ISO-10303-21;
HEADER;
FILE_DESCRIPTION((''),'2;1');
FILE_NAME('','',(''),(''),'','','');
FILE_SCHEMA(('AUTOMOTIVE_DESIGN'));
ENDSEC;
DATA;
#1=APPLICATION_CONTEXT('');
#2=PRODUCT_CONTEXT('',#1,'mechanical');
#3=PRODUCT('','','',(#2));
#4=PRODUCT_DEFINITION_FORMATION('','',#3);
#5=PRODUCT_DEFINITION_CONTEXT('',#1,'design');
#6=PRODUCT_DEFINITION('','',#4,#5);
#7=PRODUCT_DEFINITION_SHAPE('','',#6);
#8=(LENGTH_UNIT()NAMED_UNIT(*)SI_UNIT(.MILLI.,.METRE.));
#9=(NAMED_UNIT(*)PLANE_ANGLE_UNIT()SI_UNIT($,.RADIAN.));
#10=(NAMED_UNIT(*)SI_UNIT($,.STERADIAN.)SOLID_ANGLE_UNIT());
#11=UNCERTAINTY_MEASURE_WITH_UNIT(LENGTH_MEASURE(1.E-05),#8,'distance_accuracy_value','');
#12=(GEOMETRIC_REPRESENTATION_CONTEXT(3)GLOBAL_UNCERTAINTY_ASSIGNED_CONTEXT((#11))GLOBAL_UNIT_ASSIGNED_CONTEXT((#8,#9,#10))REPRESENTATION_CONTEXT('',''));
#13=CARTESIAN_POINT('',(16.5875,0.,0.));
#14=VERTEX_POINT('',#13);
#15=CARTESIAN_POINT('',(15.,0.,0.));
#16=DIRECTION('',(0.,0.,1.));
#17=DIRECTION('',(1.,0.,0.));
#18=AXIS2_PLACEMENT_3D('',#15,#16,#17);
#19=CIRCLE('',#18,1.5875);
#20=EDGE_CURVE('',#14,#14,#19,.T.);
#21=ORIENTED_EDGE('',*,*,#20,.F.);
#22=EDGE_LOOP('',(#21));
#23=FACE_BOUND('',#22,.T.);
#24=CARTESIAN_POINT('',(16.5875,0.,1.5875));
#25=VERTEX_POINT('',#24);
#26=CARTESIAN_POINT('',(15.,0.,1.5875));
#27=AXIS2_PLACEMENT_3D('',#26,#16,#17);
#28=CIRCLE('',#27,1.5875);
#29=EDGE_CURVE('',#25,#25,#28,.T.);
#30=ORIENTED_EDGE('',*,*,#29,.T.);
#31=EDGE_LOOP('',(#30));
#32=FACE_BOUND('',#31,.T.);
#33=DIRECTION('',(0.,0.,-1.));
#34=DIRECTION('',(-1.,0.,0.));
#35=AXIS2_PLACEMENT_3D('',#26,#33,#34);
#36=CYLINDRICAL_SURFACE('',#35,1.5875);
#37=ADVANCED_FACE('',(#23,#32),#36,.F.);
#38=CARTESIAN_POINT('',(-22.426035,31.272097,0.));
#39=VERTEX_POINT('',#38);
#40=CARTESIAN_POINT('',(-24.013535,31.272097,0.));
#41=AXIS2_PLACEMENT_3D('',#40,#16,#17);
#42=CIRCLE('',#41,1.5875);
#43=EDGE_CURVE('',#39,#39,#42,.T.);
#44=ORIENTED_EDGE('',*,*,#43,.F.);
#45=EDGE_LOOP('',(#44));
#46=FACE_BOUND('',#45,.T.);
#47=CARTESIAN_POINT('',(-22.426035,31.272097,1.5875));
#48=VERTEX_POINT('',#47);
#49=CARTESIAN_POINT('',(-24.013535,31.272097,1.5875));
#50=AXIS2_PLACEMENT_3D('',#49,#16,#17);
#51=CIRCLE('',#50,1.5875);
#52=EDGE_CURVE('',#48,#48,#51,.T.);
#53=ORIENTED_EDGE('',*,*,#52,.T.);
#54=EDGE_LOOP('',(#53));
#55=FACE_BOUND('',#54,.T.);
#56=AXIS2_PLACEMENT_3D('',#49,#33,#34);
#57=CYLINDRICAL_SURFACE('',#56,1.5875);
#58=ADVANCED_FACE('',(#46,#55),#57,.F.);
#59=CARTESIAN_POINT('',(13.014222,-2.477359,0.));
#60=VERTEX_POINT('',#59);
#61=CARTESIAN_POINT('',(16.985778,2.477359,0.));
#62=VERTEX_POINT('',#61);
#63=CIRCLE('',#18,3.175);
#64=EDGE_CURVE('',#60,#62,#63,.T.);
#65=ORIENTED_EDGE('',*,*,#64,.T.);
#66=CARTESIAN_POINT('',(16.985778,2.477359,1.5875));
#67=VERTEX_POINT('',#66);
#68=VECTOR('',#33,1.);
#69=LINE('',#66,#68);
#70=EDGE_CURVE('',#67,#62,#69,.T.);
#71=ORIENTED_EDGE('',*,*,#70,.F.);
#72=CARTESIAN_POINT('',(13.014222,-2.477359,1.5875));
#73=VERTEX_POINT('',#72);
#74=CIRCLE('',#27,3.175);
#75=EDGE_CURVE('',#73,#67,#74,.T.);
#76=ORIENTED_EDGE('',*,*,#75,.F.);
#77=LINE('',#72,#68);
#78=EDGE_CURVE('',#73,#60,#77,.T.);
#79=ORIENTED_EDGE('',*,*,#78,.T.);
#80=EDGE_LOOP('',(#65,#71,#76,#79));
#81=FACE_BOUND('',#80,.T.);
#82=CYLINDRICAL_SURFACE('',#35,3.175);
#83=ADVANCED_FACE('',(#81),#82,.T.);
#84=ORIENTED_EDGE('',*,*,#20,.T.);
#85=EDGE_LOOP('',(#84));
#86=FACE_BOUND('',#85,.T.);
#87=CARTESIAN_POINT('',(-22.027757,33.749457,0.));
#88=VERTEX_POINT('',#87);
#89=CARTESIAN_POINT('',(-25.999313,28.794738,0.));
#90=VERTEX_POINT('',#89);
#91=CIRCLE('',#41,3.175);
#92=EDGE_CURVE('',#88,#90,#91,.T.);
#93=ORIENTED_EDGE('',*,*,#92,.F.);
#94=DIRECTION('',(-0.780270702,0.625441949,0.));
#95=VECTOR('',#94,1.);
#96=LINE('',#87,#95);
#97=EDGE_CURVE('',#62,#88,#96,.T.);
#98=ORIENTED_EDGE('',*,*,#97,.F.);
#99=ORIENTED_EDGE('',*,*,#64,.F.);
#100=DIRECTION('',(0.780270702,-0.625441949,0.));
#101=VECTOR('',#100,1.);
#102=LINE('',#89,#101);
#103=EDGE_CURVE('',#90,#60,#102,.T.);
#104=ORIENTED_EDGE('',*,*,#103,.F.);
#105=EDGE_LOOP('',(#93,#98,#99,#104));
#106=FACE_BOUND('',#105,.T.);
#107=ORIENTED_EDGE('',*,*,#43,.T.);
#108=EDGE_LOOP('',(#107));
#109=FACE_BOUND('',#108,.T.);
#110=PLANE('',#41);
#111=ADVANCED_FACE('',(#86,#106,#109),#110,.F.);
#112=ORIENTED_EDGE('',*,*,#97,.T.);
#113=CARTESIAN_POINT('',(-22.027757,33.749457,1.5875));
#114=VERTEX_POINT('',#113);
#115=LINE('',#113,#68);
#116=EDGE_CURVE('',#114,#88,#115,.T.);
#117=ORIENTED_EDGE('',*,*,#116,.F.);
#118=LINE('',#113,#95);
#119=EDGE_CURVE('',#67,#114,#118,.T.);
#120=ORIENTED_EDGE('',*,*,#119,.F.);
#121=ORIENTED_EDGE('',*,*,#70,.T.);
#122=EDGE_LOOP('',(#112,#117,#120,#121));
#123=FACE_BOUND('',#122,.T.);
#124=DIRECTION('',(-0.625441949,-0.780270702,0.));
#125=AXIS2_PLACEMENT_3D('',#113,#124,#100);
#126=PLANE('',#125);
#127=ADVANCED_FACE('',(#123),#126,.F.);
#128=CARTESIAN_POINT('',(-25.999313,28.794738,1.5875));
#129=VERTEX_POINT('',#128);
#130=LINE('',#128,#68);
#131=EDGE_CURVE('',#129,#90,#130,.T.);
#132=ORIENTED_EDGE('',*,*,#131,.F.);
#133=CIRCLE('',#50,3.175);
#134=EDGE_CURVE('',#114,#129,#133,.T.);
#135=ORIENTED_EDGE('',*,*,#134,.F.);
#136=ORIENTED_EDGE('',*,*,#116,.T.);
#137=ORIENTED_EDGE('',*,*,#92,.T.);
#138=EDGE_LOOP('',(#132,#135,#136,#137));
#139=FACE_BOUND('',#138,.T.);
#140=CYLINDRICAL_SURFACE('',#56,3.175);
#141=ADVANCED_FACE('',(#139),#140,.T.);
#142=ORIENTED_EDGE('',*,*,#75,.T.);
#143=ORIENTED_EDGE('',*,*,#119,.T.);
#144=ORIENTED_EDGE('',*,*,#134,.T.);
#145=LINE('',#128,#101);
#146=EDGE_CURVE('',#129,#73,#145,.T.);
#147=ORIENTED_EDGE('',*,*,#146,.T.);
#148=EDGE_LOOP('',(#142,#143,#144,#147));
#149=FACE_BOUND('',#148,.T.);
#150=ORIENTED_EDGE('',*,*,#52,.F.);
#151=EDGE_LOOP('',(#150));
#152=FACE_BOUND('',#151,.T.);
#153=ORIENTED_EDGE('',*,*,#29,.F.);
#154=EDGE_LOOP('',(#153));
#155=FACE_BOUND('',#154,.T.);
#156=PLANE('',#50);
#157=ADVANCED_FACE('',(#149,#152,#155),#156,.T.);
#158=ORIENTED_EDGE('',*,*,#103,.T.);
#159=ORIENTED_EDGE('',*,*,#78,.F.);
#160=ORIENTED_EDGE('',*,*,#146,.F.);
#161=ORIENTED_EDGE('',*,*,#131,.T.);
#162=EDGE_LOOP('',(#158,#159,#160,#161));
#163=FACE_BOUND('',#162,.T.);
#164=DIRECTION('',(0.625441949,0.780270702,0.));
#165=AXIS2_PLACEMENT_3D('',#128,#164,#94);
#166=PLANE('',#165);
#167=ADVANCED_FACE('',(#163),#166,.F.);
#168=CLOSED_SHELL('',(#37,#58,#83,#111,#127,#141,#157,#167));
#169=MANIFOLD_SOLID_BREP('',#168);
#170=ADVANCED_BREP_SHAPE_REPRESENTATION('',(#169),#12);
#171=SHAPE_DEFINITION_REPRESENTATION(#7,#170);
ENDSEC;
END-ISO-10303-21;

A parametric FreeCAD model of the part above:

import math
import FreeCAD as App
import Part
import Sketcher
from FreeCAD import Vector
Q = App.Units.Quantity

doc = App.newDocument("Part")
body = doc.addObject("PartDesign::Body", "Body")

sketch1 = body.newObject("Sketcher::SketchObject", "Sketch")
sketch1.AttachmentSupport = (doc.getObject("XY_Plane"), [""])
sketch1.MapMode = "FlatFace"
sketch1.addGeometry(Part.LineSegment(Vector(17, 2.5, 0), Vector(-22, 33.7, 0)), False)
sketch1.addGeometry(Part.ArcOfCircle(Part.Circle(Vector(-24, 31.3, 0), Vector(0, 0, 1), 3.2), math.radians(51), math.radians(231)), False)
sketch1.addGeometry(Part.LineSegment(Vector(-26, 28.8, 0), Vector(13, -2.5, 0)), False)
sketch1.addGeometry(Part.ArcOfCircle(Part.Circle(Vector(15, 0, 0), Vector(0, 0, 1), 3.2), math.radians(-129), math.radians(51)), False)
sketch1.addGeometry(Part.Circle(Vector(15, 0, 0), Vector(0, 0, 1), 1.6), False)
sketch1.addGeometry(Part.Circle(Vector(-24, 31.3, 0), Vector(0, 0, 1), 1.6), False)
sketch1.addConstraint(Sketcher.Constraint("Tangent", 0, 2, 1, 1))
sketch1.addConstraint(Sketcher.Constraint("Tangent", 1, 2, 2, 1))
sketch1.addConstraint(Sketcher.Constraint("Tangent", 2, 2, 3, 1))
sketch1.addConstraint(Sketcher.Constraint("Tangent", 3, 2, 0, 1))
sketch1.addConstraint(Sketcher.Constraint("Coincident", 4, 3, 3, 3))
sketch1.addConstraint(Sketcher.Constraint("Coincident", 5, 3, 1, 3))
sketch1.addConstraint(Sketcher.Constraint("Equal", 1, 3))
sketch1.addConstraint(Sketcher.Constraint("Equal", 4, 5))
sketch1.addConstraint(Sketcher.Constraint("PointOnObject", 3, 3, -1))
sketch1.addConstraint(Sketcher.Constraint("Diameter", 4, Q("0.125 in")))
sketch1.addConstraint(Sketcher.Constraint("Radius", 1, Q("0.125 in")))
sketch1.addConstraint(Sketcher.Constraint("Distance", 0, 50.0))
sketch1.addConstraint(Sketcher.Constraint("DistanceX", -1, 1, 3, 3, 15.0))
sketch1.addConstraint(Sketcher.Constraint("DistanceX", -1, 1, 2, 2, 13.014222))
pad1 = body.newObject("PartDesign::Pad", "Pad")
pad1.Profile = sketch1
pad1.Length = Q("0.0625 in")

doc.recompute()
